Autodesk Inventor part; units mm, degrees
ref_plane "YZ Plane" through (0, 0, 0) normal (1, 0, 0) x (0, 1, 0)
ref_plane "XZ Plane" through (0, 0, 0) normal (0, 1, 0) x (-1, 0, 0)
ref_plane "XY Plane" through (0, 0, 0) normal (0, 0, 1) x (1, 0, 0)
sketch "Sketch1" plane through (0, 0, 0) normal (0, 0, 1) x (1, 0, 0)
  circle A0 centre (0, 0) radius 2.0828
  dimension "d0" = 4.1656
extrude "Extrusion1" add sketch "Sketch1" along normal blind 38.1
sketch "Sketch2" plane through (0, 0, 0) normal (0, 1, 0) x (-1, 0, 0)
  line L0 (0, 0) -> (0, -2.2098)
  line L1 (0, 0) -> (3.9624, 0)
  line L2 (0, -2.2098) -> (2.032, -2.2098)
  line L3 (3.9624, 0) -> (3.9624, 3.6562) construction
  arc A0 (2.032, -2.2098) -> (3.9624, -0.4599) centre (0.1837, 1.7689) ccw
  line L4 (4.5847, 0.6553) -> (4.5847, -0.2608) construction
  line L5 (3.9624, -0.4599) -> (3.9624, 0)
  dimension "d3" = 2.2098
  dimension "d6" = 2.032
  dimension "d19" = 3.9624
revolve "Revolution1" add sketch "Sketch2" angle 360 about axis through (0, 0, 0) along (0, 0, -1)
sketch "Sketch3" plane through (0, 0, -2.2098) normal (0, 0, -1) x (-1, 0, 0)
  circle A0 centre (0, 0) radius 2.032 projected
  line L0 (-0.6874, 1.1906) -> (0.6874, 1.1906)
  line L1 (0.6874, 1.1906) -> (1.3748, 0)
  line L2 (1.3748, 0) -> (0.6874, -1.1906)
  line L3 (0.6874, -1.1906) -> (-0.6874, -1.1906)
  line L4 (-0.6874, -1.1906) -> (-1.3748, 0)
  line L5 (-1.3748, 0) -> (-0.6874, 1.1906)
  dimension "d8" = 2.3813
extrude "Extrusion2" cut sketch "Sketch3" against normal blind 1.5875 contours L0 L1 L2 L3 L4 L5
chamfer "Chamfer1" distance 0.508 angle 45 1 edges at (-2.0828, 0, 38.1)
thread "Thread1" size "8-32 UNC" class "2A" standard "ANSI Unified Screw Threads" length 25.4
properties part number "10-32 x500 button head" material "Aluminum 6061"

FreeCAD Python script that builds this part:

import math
import FreeCAD as App
import Part
import Sketcher
from FreeCAD import Vector
Q = App.Units.Quantity


def edges_at(feature, points):
    """Names of the edges that pass closest to the given points."""
    edges = feature.Shape.Edges
    near = lambda p: min(range(len(edges)), key=lambda i: edges[i].distToShape(Part.Vertex(*p))[0])
    return sorted({f"Edge{near(p) + 1}" for p in points})

doc = App.newDocument("Part")
body = doc.addObject("PartDesign::Body", "Body")

sketch1 = body.newObject("Sketcher::SketchObject", "Sketch")
sketch1.AttachmentSupport = (doc.getObject("XY_Plane"), [""])
sketch1.MapMode = "FlatFace"
sketch1.addGeometry(Part.Circle(Vector(0, 0, 0), Vector(0, 0, 1), 2.0828), False)
sketch1.addConstraint([
    Sketcher.Constraint("Coincident", 0, 3, -1, 1),
    Sketcher.Constraint("Diameter", 0, Q("0.164 in")),
])
pad1 = body.newObject("PartDesign::Pad", "Pad")
pad1.Profile = sketch1
pad1.Length = Q("1.5 in")

sketch2 = body.newObject("Sketcher::SketchObject", "Sketch001")
sketch2.AttachmentSupport = (doc.getObject("XZ_Plane"), [""])
sketch2.MapMode = "FlatFace"
sketch2.addGeometry([
    Part.LineSegment(Vector(-3.9624, 0, 0), Vector(0, 0, 0)),
    Part.LineSegment(Vector(0, 0, 0), Vector(0, -2.2098, 0)),
    Part.LineSegment(Vector(0, -2.2098, 0), Vector(-2.032, -2.2098, 0)),
    Part.ArcOfCircle(Part.Circle(Vector(-0.1837, 1.7689, 0), Vector(0, 0, 1), 4.387057), math.radians(-149.466515), math.radians(-114.917164)),
    Part.LineSegment(Vector(-3.9624, -0.4599, 0), Vector(-3.9624, 0, 0)),
], False)
sketch2.addConstraint([
    Sketcher.Constraint("Coincident", 0, 2, 1, 1),
    Sketcher.Constraint("Coincident", 1, 2, 2, 1),
    Sketcher.Constraint("Coincident", 2, 2, 3, 2),
    Sketcher.Constraint("Coincident", 3, 1, 4, 1),
    Sketcher.Constraint("Coincident", 4, 2, 0, 1),
    Sketcher.Constraint("Horizontal", 0),
    Sketcher.Constraint("Vertical", 1),
    Sketcher.Constraint("Horizontal", 2),
    Sketcher.Constraint("Vertical", 4),
    Sketcher.Constraint("Coincident", 0, 2, -1, 1),
    Sketcher.Constraint("DistanceX", 2, 2, 2, 1, Q("0.08 in")),
    Sketcher.Constraint("DistanceX", 0, 1, 0, 2, Q("0.156 in")),
    Sketcher.Constraint("DistanceY", 1, 2, 1, 1, Q("0.087 in")),
    Sketcher.Constraint("Radius", 3, 4.387),
    Sketcher.Constraint("DistanceY", 4, 1, 4, 2, Q("0.0181 in")),
])
revolution = body.newObject("PartDesign::Revolution", "Revolution")
revolution.Profile = sketch2
revolution.ReferenceAxis = (sketch2, ["V_Axis"])
revolution.Angle = 360

sketch3 = body.newObject("Sketcher::SketchObject", "Sketch002")
sketch3.AttachmentSupport = (doc.getObject("XY_Plane"), [""])
sketch3.MapMode = "FlatFace"
sketch3.AttachmentOffset = App.Placement(Vector(0, 0, -0.087 * 25.4), App.Rotation())
sketch3.addGeometry([
    Part.LineSegment(Vector(-0.6874, 1.1906, 0), Vector(0.6874, 1.1906, 0)),
    Part.LineSegment(Vector(0.6874, 1.1906, 0), Vector(1.3748, 0, 0)),
    Part.LineSegment(Vector(1.3748, 0, 0), Vector(0.6874, -1.1906, 0)),
    Part.LineSegment(Vector(0.6874, -1.1906, 0), Vector(-0.6874, -1.1906, 0)),
    Part.LineSegment(Vector(-0.6874, -1.1906, 0), Vector(-1.3748, 0, 0)),
    Part.LineSegment(Vector(-1.3748, 0, 0), Vector(-0.6874, 1.1906, 0)),
], False)
sketch3.addConstraint([
    Sketcher.Constraint("Coincident", 0, 2, 1, 1),
    Sketcher.Constraint("Coincident", 1, 2, 2, 1),
    Sketcher.Constraint("Coincident", 2, 2, 3, 1),
    Sketcher.Constraint("Coincident", 3, 2, 4, 1),
    Sketcher.Constraint("Coincident", 4, 2, 5, 1),
    Sketcher.Constraint("Coincident", 5, 2, 0, 1),
    Sketcher.Constraint("Horizontal", 0),
    Sketcher.Constraint("Horizontal", 3),
    Sketcher.Constraint("Symmetric", 0, 2, 3, 2, -1, 1),
    Sketcher.Constraint("Symmetric", 1, 2, 4, 2, -1, 1),
    Sketcher.Constraint("PointOnObject", 1, 2, -1),
    Sketcher.Constraint("Parallel", 2, 5),
    Sketcher.Constraint("Vertical", 0, 2, 2, 2),
    Sketcher.Constraint("Angle", 1, Q("-59.9998 deg")),
    Sketcher.Constraint("DistanceY", 2, 2, 0, 2, Q("0.093748 in")),
    Sketcher.Constraint("DistanceX", 0, 1, 0, 2, 1.3748),
])
pocket1 = body.newObject("PartDesign::Pocket", "Pocket")
pocket1.Profile = sketch3
pocket1.Length = Q("0.0625 in")
pocket1.Reversed = True
doc.recompute()

chamfer = body.newObject("PartDesign::Chamfer", "Chamfer")
chamfer.Base = (pocket1, edges_at(pocket1, [(-2.083, 0, 38.1)]))
chamfer.Size = Q("0.02 in")

doc.recompute()
